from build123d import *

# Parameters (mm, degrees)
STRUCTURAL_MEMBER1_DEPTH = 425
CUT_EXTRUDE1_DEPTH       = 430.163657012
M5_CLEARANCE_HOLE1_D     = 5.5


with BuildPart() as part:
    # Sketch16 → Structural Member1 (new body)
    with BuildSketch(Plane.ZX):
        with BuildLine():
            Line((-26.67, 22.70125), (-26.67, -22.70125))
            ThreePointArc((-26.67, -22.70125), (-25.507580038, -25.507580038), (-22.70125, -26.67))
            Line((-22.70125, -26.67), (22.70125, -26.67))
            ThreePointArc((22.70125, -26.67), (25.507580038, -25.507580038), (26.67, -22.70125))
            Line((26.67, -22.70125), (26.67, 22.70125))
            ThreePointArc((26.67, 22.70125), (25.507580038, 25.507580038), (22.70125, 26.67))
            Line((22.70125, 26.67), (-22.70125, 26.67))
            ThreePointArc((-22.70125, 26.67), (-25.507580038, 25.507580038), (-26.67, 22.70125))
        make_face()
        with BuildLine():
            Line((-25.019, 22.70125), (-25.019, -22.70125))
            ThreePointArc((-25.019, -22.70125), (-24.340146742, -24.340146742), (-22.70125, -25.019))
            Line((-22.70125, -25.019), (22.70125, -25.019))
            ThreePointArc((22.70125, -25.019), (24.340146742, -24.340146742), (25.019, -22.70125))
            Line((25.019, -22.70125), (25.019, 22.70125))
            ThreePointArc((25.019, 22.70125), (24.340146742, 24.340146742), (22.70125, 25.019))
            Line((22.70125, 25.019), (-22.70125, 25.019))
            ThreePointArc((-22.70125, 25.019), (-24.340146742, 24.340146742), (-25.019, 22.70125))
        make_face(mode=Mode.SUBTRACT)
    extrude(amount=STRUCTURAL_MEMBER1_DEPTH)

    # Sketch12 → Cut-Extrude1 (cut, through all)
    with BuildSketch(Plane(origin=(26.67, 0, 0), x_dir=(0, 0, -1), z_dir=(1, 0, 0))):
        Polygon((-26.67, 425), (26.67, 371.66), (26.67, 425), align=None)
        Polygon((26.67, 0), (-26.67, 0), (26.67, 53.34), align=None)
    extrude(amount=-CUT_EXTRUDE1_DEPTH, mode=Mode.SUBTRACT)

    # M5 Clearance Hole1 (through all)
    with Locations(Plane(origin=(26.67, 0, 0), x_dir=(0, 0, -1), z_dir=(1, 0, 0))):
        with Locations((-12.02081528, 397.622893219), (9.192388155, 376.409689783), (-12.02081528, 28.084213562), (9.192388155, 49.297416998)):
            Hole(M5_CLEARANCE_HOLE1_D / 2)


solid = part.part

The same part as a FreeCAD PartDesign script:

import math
import FreeCAD as App
import Part
import Sketcher
from FreeCAD import Vector


def add_polygon(sketch, points):
    """Adds a closed chain of lines whose ends are joined by coincident constraints."""
    first, n = sketch.GeometryCount, len(points)
    for a, b in zip(points, points[1:] + points[:1]):
        sketch.addGeometry(Part.LineSegment(App.Vector(*a, 0), App.Vector(*b, 0)), False)
    for i in range(n):
        sketch.addConstraint(Sketcher.Constraint("Coincident", first + i, 2, first + (i + 1) % n, 1))

doc = App.newDocument("Part")
body = doc.addObject("PartDesign::Body", "Body")

# Sketch on XZ plane
sketch1 = body.newObject("Sketcher::SketchObject", "Sketch")
sketch1.AttachmentSupport = (doc.getObject("XZ_Plane"), [""])
sketch1.MapMode = "FlatFace"
sketch1.addGeometry([
    Part.LineSegment(Vector(22.7, -26.7, 0), Vector(-22.7, -26.7, 0)),  # 0
    Part.ArcOfCircle(Part.Circle(Vector(-22.7, -22.7, 0), Vector(0, 0, 1), 4), math.radians(180), math.radians(270)),  # 1
    Part.LineSegment(Vector(-26.7, -22.7, 0), Vector(-26.7, 22.7, 0)),  # 2
    Part.ArcOfCircle(Part.Circle(Vector(-22.7, 22.7, 0), Vector(0, 0, 1), 4), math.radians(90), math.radians(180)),  # 3
    Part.LineSegment(Vector(-22.7, 26.7, 0), Vector(22.7, 26.7, 0)),  # 4
    Part.ArcOfCircle(Part.Circle(Vector(22.7, 22.7, 0), Vector(0, 0, 1), 4), math.radians(0), math.radians(90)),  # 5
    Part.LineSegment(Vector(26.7, 22.7, 0), Vector(26.7, -22.7, 0)),  # 6
    Part.ArcOfCircle(Part.Circle(Vector(22.7, -22.7, 0), Vector(0, 0, 1), 4), math.radians(-90), math.radians(0)),  # 7
    Part.LineSegment(Vector(-22.7, -25, 0), Vector(22.7, -25, 0)),  # 8
    Part.ArcOfCircle(Part.Circle(Vector(22.7, -22.7, 0), Vector(0, 0, 1), 2.3), math.radians(-90), math.radians(0)),  # 9
    Part.LineSegment(Vector(25, -22.7, 0), Vector(25, 22.7, 0)),  # 10
    Part.ArcOfCircle(Part.Circle(Vector(22.7, 22.7, 0), Vector(0, 0, 1), 2.3), math.radians(0), math.radians(90)),  # 11
    Part.LineSegment(Vector(22.7, 25, 0), Vector(-22.7, 25, 0)),  # 12
    Part.ArcOfCircle(Part.Circle(Vector(-22.7, 22.7, 0), Vector(0, 0, 1), 2.3), math.radians(90), math.radians(180)),  # 13
    Part.LineSegment(Vector(-25, 22.7, 0), Vector(-25, -22.7, 0)),  # 14
    Part.ArcOfCircle(Part.Circle(Vector(-22.7, -22.7, 0), Vector(0, 0, 1), 2.3), math.radians(180), math.radians(270)),  # 15
], False)
sketch1.addConstraint([
    Sketcher.Constraint("Tangent", 0, 2, 1, 2),
    Sketcher.Constraint("Tangent", 1, 1, 2, 1),
    Sketcher.Constraint("Tangent", 2, 2, 3, 2),
    Sketcher.Constraint("Tangent", 3, 1, 4, 1),
    Sketcher.Constraint("Tangent", 4, 2, 5, 2),
    Sketcher.Constraint("Tangent", 5, 1, 6, 1),
    Sketcher.Constraint("Tangent", 6, 2, 7, 2),
    Sketcher.Constraint("Tangent", 7, 1, 0, 1),
    Sketcher.Constraint("Tangent", 8, 2, 9, 1),
    Sketcher.Constraint("Tangent", 9, 2, 10, 1),
    Sketcher.Constraint("Tangent", 10, 2, 11, 1),
    Sketcher.Constraint("Tangent", 11, 2, 12, 1),
    Sketcher.Constraint("Tangent", 12, 2, 13, 1),
    Sketcher.Constraint("Tangent", 13, 2, 14, 1),
    Sketcher.Constraint("Tangent", 14, 2, 15, 1),
    Sketcher.Constraint("Tangent", 15, 2, 8, 1),
    Sketcher.Constraint("Horizontal", 0),
    Sketcher.Constraint("Vertical", 2),
    Sketcher.Constraint("Horizontal", 4),
    Sketcher.Constraint("Vertical", 6),
    Sketcher.Constraint("Horizontal", 8),
    Sketcher.Constraint("Vertical", 10),
    Sketcher.Constraint("Horizontal", 12),
    Sketcher.Constraint("Vertical", 14),
    Sketcher.Constraint("Coincident", 9, 3, 7, 3),
    Sketcher.Constraint("Coincident", 11, 3, 5, 3),
    Sketcher.Constraint("Coincident", 13, 3, 3, 3),
    Sketcher.Constraint("Equal", 1, 3),
    Sketcher.Constraint("Equal", 3, 5),
    Sketcher.Constraint("Equal", 5, 7),
    Sketcher.Constraint("Equal", 13, 15),
    Sketcher.Constraint("Symmetric", 1, 3, 5, 3, -1, 1),
    Sketcher.Constraint("Equal", 12, 2),
    Sketcher.Constraint("DistanceY", 0, 2, -1, 1, 26.67),
    Sketcher.Constraint("Radius", 1, 3.96875),
    Sketcher.Constraint("Radius", 9, 2.31775),
])
pad1 = body.newObject("PartDesign::Pad", "Pad")
pad1.Profile = sketch1
pad1.Length = 425
pad1.Reversed = True

# Sketch on YZ plane
sketch2 = body.newObject("Sketcher::SketchObject", "Sketch001")
sketch2.AttachmentSupport = (doc.getObject("YZ_Plane"), [""])
sketch2.MapMode = "FlatFace"
sketch2.AttachmentOffset = App.Placement(Vector(0, 0, 26.67), App.Rotation())
add_polygon(sketch2, [(425, 27), (372, -27), (425, -27)])  # lines 0-2
add_polygon(sketch2, [(0, 27), (0, -27), (53, -27)])  # lines 3-5
sketch2.addConstraint([
    Sketcher.Constraint("Horizontal", 1),
    Sketcher.Constraint("Vertical", 2),
    Sketcher.Constraint("Vertical", 3),
    Sketcher.Constraint("Horizontal", 4),
    Sketcher.Constraint("Symmetric", 3, 2, 5, 2, -1, 1),
    Sketcher.Constraint("Perpendicular", 0, 5),
    Sketcher.Constraint("Horizontal", 1, 2, 3, 2),
    Sketcher.Constraint("Horizontal", 2, 2, 5, 2),
    Sketcher.Constraint("Equal", 1, 4),
    Sketcher.Constraint("DistanceX", -1, 1, 1, 2, 425.0),
    Sketcher.Constraint("DistanceX", 1, 1, 1, 2, 53.34),
])
pocket1 = body.newObject("PartDesign::Pocket", "Pocket")
pocket1.Profile = sketch2
pocket1.Type = "ThroughAll"

# Sketch on YZ plane
sketch3 = body.newObject("Sketcher::SketchObject", "Sketch002")
sketch3.AttachmentSupport = (doc.getObject("YZ_Plane"), [""])
sketch3.MapMode = "FlatFace"
sketch3.AttachmentOffset = App.Placement(Vector(0, 0, 26.67), App.Rotation())
sketch3.addGeometry([
    Part.Circle(Vector(397.6, 12, 0), Vector(0, 0, 1), 2.8),
    Part.Circle(Vector(376.4, -9.2, 0), Vector(0, 0, 1), 2.8),
    Part.Circle(Vector(28.1, 12, 0), Vector(0, 0, 1), 2.8),
    Part.Circle(Vector(49.3, -9.2, 0), Vector(0, 0, 1), 2.8),
], False)
sketch3.addConstraint([
    Sketcher.Constraint("Equal", 0, 1),
    Sketcher.Constraint("Equal", 1, 2),
    Sketcher.Constraint("Equal", 2, 3),
    Sketcher.Constraint("Horizontal", 0, 3, 2, 3),
    Sketcher.Constraint("Horizontal", 1, 3, 3, 3),
    Sketcher.Constraint("Diameter", 0, 5.5),
    Sketcher.Constraint("DistanceX", -1, 1, 1, 3, 376.40969),
    Sketcher.Constraint("DistanceY", 1, 3, -1, 1, 9.192388),
    Sketcher.Constraint("DistanceX", 2, 3, 0, 3, 369.53868),
    Sketcher.Constraint("DistanceX", -1, 1, 0, 3, 397.622893),
    Sketcher.Constraint("DistanceY", -1, 1, 0, 3, 12.020815),
    Sketcher.Constraint("DistanceX", -1, 1, 3, 3, 49.297417),
])
doc.recompute()
hole = body.newObject("PartDesign::Hole", "Hole")
hole.Profile = sketch3
hole.ThreadType = "None"
hole.Diameter = 5.5
hole.DepthType = "ThroughAll"

doc.recompute()
